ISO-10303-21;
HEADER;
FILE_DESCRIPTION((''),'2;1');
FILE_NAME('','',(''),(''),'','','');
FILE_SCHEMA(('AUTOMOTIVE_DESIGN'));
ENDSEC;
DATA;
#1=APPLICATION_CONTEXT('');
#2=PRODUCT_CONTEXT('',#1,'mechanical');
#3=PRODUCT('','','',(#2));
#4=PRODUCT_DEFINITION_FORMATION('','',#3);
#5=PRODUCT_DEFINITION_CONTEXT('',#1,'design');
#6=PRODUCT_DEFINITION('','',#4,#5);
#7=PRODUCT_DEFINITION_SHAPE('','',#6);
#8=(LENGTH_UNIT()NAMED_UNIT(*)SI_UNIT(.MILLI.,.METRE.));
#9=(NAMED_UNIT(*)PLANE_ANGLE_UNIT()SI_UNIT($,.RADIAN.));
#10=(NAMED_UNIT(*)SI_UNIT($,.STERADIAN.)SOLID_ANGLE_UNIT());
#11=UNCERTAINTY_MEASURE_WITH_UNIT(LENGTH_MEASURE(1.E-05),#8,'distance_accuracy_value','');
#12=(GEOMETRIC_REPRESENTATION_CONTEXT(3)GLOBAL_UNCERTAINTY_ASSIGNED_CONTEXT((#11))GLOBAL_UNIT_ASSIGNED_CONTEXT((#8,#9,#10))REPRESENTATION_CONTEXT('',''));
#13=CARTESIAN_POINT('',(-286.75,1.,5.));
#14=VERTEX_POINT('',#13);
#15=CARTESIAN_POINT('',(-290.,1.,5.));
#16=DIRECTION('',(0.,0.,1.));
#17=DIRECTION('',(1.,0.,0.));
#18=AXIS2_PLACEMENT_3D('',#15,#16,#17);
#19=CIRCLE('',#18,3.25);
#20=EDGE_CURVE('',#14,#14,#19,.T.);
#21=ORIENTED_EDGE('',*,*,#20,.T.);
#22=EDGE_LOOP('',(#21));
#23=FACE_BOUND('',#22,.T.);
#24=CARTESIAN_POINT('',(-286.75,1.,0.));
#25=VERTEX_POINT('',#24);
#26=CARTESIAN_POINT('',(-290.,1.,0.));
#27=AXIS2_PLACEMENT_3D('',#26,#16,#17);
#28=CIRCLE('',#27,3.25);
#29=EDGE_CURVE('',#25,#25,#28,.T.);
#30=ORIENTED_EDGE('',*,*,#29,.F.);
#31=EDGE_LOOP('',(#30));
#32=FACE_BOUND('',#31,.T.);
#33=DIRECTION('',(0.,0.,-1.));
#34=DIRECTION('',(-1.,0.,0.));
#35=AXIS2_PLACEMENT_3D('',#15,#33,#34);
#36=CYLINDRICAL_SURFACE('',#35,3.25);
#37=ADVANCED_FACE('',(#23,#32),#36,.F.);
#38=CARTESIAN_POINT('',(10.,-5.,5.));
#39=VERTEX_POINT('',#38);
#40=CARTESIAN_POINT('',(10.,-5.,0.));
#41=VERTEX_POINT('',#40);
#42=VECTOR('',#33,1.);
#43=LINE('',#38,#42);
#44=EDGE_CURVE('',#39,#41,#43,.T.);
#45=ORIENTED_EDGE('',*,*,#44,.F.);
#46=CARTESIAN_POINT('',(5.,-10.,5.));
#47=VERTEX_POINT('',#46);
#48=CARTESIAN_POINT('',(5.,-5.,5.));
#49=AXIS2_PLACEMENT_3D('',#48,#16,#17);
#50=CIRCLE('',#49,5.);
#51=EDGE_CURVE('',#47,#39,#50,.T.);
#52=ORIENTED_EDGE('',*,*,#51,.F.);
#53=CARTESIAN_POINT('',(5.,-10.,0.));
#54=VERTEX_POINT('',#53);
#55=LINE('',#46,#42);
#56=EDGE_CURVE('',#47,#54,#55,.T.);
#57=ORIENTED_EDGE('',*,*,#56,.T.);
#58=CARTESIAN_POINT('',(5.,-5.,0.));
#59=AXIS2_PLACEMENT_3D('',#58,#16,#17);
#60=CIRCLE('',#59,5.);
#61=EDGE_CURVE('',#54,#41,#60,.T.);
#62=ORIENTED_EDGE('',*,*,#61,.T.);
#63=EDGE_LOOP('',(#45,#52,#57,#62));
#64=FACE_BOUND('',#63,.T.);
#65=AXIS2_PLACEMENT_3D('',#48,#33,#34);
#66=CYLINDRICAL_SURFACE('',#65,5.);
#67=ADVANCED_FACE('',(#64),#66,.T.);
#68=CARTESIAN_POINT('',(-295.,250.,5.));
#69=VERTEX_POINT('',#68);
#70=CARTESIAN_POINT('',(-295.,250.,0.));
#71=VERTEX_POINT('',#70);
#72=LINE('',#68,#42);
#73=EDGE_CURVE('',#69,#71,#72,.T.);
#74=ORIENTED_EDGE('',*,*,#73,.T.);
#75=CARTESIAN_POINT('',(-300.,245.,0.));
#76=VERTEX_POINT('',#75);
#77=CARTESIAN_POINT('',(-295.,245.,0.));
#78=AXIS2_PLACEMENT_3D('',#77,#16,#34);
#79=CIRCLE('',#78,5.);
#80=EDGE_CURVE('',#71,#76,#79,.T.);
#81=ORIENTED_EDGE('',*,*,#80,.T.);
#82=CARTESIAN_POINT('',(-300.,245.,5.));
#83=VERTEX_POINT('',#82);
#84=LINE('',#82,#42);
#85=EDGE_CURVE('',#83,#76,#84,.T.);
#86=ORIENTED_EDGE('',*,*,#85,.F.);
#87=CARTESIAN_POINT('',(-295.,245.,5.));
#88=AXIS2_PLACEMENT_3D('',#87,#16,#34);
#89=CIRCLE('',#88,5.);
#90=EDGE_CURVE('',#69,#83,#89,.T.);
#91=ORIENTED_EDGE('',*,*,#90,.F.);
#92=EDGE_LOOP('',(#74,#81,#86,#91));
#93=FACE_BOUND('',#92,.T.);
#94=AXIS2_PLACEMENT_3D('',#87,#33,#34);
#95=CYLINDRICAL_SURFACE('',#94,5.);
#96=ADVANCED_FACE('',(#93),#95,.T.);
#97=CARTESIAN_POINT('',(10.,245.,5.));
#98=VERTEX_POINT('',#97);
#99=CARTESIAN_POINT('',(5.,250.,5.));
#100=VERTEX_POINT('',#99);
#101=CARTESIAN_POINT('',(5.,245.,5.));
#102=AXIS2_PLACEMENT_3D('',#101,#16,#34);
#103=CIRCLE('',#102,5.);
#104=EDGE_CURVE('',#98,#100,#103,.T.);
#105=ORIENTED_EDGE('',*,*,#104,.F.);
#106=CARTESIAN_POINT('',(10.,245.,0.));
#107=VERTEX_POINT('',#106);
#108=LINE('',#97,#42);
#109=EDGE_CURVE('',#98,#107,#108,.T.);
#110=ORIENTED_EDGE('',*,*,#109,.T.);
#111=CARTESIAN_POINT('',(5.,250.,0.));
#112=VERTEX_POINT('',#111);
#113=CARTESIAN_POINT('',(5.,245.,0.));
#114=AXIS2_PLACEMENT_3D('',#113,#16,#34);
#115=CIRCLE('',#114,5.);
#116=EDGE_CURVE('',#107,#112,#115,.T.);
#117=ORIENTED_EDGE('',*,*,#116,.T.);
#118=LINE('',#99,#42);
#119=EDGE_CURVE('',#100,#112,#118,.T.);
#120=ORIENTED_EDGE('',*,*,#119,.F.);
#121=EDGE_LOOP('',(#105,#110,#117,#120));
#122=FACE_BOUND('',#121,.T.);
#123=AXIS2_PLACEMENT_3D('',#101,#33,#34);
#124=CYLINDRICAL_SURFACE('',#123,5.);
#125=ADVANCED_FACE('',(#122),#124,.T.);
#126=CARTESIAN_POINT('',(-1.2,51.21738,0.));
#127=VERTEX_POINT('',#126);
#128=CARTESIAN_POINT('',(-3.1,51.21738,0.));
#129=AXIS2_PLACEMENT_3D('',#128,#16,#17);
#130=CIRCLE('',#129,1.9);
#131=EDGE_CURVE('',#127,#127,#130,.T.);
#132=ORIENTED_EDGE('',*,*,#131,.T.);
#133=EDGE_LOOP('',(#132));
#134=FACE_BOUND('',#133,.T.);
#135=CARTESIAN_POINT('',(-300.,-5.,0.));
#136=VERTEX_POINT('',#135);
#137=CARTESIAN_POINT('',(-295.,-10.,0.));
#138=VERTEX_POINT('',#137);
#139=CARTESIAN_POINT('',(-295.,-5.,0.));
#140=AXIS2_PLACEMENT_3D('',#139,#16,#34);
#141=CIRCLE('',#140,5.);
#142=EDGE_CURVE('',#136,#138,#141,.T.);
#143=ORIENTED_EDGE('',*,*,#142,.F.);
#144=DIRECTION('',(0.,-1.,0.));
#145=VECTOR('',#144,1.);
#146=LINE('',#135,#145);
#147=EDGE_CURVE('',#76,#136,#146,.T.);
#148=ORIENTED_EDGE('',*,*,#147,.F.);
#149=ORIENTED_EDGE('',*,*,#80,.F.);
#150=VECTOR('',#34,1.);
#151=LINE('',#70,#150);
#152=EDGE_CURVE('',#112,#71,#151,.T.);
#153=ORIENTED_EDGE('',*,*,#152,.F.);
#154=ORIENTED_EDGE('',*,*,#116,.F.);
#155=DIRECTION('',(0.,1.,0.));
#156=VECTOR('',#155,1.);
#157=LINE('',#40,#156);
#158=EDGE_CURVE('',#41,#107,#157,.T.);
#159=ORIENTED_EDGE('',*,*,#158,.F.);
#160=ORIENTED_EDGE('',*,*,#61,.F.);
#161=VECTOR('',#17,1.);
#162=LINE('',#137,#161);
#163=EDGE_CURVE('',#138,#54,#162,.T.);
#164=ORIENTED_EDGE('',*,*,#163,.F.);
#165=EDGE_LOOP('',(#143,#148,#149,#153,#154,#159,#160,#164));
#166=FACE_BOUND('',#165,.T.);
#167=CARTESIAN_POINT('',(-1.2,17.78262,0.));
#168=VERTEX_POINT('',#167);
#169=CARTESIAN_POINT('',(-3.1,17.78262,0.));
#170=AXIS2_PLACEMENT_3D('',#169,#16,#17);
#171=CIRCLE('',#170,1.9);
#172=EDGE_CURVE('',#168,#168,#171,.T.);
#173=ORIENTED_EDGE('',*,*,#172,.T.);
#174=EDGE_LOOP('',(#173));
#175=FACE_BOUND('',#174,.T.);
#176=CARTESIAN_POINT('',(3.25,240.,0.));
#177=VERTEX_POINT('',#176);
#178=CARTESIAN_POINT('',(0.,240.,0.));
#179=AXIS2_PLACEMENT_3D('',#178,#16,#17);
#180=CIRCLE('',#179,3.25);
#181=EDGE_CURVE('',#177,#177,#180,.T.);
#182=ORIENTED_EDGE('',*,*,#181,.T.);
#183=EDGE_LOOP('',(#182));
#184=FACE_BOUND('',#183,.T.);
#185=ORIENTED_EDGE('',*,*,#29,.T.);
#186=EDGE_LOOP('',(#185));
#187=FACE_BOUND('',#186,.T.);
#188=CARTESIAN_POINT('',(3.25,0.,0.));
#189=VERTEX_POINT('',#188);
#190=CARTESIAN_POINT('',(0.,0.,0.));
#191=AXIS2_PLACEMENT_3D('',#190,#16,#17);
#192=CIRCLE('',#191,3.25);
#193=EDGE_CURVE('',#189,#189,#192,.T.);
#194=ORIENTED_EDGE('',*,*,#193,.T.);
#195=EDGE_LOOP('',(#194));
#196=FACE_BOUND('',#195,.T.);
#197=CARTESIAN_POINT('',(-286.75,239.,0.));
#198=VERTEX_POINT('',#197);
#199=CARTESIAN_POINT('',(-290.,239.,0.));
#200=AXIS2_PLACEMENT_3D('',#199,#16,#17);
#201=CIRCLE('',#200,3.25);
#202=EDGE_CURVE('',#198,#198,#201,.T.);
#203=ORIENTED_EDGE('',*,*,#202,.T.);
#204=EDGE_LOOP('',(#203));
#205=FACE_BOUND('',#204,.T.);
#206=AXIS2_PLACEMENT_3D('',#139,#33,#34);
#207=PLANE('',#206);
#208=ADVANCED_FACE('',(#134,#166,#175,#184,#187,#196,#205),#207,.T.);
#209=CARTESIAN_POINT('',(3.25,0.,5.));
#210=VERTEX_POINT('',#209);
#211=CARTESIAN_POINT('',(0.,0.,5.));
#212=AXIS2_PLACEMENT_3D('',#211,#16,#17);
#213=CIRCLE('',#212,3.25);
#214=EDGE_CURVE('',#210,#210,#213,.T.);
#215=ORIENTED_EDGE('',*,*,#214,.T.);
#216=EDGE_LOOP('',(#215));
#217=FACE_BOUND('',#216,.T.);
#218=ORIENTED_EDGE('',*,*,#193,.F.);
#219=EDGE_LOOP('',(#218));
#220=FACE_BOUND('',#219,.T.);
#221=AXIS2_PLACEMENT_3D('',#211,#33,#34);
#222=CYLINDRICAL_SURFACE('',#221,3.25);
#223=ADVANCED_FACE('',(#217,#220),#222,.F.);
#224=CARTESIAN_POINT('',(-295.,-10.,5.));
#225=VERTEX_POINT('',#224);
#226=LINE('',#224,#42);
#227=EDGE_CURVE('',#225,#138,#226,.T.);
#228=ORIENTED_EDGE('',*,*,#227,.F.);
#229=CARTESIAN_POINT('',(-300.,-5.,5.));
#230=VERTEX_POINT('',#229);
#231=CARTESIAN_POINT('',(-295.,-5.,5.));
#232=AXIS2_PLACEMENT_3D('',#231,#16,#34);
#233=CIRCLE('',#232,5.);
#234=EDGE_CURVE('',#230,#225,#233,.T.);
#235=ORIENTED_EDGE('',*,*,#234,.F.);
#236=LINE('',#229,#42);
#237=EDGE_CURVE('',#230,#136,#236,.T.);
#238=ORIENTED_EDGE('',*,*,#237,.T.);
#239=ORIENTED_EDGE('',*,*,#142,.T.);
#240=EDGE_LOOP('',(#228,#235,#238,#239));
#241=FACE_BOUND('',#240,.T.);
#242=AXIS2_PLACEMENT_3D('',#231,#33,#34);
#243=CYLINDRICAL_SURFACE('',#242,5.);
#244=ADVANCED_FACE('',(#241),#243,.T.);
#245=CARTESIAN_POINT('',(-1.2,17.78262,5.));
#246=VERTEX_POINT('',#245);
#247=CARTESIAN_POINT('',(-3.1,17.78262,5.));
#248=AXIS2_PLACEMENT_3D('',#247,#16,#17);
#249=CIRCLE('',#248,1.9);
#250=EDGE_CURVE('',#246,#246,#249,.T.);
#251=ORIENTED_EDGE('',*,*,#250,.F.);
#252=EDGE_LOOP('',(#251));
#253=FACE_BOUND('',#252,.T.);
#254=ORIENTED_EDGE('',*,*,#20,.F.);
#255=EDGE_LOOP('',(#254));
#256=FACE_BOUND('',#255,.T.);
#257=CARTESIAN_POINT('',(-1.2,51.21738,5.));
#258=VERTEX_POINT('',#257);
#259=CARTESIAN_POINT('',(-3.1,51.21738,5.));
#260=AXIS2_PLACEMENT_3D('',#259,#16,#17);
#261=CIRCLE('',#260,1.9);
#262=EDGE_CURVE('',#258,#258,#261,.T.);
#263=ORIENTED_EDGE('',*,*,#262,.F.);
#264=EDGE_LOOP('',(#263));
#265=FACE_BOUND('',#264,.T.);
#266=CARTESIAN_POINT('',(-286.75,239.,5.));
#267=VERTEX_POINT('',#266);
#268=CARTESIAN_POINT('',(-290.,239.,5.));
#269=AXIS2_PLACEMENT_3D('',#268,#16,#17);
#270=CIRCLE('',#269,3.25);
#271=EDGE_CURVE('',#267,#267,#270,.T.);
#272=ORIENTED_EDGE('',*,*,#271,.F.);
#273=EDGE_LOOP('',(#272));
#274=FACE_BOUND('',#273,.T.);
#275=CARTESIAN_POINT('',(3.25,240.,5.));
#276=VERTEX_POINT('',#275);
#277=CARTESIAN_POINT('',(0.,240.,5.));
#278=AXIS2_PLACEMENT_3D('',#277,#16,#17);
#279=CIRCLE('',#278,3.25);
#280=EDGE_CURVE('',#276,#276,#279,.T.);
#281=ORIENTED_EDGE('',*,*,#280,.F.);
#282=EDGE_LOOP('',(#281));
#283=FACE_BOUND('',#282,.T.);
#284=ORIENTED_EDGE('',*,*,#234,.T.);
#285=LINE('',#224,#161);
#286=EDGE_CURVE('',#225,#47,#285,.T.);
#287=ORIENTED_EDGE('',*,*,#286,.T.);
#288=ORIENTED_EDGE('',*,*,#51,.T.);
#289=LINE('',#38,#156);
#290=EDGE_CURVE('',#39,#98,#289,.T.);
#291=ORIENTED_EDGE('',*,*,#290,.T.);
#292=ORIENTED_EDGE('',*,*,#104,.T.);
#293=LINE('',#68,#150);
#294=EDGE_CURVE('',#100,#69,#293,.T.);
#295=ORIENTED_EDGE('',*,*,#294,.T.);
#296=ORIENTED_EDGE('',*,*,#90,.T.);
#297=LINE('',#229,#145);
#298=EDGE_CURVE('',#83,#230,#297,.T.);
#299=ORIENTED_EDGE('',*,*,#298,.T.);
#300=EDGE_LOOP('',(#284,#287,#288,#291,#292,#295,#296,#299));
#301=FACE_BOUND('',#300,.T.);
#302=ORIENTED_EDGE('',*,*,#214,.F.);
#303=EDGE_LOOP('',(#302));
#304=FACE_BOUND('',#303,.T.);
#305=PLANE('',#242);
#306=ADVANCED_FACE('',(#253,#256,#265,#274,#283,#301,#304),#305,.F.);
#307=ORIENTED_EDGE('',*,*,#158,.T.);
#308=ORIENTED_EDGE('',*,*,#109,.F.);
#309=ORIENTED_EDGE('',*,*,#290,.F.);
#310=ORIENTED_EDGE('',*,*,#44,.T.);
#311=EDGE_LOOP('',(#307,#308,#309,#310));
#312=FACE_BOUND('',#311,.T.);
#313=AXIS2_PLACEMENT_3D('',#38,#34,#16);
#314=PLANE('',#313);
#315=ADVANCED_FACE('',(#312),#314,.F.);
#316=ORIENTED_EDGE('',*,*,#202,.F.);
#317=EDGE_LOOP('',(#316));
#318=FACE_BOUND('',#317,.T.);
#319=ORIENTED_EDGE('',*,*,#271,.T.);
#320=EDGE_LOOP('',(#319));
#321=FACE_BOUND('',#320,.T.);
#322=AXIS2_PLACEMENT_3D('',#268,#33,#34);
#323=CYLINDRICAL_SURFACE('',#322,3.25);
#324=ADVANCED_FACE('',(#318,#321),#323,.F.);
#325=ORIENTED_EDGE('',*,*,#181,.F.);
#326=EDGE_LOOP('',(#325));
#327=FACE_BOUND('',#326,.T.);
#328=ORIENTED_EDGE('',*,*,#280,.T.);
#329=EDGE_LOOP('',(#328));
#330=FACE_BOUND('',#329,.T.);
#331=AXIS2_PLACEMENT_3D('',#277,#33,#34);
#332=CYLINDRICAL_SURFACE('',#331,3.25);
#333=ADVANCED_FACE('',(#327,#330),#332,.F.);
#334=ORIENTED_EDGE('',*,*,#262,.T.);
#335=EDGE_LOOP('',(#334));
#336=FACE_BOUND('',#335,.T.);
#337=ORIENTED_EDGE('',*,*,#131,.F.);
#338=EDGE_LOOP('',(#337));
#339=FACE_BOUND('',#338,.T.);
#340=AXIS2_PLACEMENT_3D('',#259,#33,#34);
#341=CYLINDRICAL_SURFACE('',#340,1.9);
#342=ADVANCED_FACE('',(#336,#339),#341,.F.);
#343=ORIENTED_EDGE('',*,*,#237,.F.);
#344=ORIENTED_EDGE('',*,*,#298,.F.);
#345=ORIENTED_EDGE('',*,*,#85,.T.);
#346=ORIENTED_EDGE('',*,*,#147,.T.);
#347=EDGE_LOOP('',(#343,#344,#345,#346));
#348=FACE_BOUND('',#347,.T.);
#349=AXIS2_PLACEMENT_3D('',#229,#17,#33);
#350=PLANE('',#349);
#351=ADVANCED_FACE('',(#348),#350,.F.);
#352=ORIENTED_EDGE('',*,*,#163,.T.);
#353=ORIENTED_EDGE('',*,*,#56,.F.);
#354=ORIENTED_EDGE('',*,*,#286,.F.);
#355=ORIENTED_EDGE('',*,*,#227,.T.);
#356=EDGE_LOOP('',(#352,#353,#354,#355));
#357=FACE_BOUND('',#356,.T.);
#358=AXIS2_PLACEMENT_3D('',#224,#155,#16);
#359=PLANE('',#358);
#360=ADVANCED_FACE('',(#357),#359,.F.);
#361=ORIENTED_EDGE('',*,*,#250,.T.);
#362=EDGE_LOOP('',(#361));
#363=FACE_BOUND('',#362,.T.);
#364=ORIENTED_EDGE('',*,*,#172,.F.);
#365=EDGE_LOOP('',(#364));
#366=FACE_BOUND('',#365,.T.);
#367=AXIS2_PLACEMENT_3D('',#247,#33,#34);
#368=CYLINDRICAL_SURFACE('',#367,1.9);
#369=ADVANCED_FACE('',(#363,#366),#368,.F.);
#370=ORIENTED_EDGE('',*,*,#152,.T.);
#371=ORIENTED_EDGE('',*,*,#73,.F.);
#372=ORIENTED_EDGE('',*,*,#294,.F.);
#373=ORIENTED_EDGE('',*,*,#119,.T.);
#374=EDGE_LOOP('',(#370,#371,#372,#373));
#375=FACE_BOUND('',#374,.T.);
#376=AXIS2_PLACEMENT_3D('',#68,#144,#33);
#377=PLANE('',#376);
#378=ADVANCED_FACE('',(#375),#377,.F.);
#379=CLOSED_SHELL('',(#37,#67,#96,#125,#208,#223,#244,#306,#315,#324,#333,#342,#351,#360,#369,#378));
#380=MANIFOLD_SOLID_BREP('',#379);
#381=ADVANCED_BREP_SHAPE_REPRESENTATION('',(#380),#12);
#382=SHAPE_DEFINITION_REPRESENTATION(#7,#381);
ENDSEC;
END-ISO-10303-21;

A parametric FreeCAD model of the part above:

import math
import FreeCAD as App
import Part
import Sketcher

doc = App.newDocument("Part")
body = doc.addObject("PartDesign::Body", "Body")

# Sketch on XY plane
sketch1 = body.newObject("Sketcher::SketchObject", "Sketch")
sketch1.AttachmentSupport = (doc.getObject("XY_Plane"), [""])
sketch1.MapMode = "FlatFace"
sketch1.addGeometry([
    Part.LineSegment(App.Vector(-295, -10, 0), App.Vector(5, -10, 0)),  # 0
    Part.ArcOfCircle(Part.Circle(App.Vector(5, -5, 0), App.Vector(0, 0, 1), 5), math.radians(-90), math.radians(0)),  # 1
    Part.LineSegment(App.Vector(10, -5, 0), App.Vector(10, 245, 0)),  # 2
    Part.ArcOfCircle(Part.Circle(App.Vector(5, 245, 0), App.Vector(0, 0, 1), 5), math.radians(0), math.radians(90)),  # 3
    Part.LineSegment(App.Vector(5, 250, 0), App.Vector(-295, 250, 0)),  # 4
    Part.ArcOfCircle(Part.Circle(App.Vector(-295, 245, 0), App.Vector(0, 0, 1), 5), math.radians(90), math.radians(180)),  # 5
    Part.LineSegment(App.Vector(-300, 245, 0), App.Vector(-300, -5, 0)),  # 6
    Part.ArcOfCircle(Part.Circle(App.Vector(-295, -5, 0), App.Vector(0, 0, 1), 5), math.radians(180), math.radians(270)),  # 7
    Part.Circle(App.Vector(-290, 1, 0), App.Vector(0, 0, 1), 3.2),  # 8
    Part.Circle(App.Vector(0, 0, 0), App.Vector(0, 0, 1), 3.2),  # 9
    Part.Circle(App.Vector(-3.1, 17.8, 0), App.Vector(0, 0, 1), 1.9),  # 10
    Part.Circle(App.Vector(-3.1, 51.2, 0), App.Vector(0, 0, 1), 1.9),  # 11
    Part.Circle(App.Vector(-290, 239, 0), App.Vector(0, 0, 1), 3.2),  # 12
    Part.Circle(App.Vector(0, 240, 0), App.Vector(0, 0, 1), 3.2),  # 13
], False)
sketch1.addConstraint([
    Sketcher.Constraint("Tangent", 0, 2, 1, 1),
    Sketcher.Constraint("Tangent", 1, 2, 2, 1),
    Sketcher.Constraint("Tangent", 2, 2, 3, 1),
    Sketcher.Constraint("Tangent", 3, 2, 4, 1),
    Sketcher.Constraint("Tangent", 4, 2, 5, 1),
    Sketcher.Constraint("Tangent", 5, 2, 6, 1),
    Sketcher.Constraint("Tangent", 6, 2, 7, 1),
    Sketcher.Constraint("Tangent", 7, 2, 0, 1),
    Sketcher.Constraint("Horizontal", 0),
    Sketcher.Constraint("Vertical", 2),
    Sketcher.Constraint("Horizontal", 4),
    Sketcher.Constraint("Vertical", 6),
    Sketcher.Constraint("Coincident", 9, 3, -1, 1),
    Sketcher.Constraint("Equal", 1, 3),
    Sketcher.Constraint("Equal", 3, 5),
    Sketcher.Constraint("Equal", 5, 7),
    Sketcher.Constraint("Equal", 8, 9),
    Sketcher.Constraint("Equal", 10, 11),
    Sketcher.Constraint("Equal", 9, 12),
    Sketcher.Constraint("Equal", 12, 13),
    Sketcher.Constraint("PointOnObject", 13, 3, -2),
    Sketcher.Constraint("Vertical", 10, 3, 11, 3),
    Sketcher.Constraint("Vertical", 8, 3, 12, 3),
    Sketcher.Constraint("Radius", 1, 5.0),
    Sketcher.Constraint("Diameter", 8, 6.5),
    Sketcher.Constraint("Diameter", 10, 3.8),
    Sketcher.Constraint("DistanceX", 0, 1, 0, 2, 300.0),
    Sketcher.Constraint("DistanceY", 2, 1, 2, 2, 250.0),
    Sketcher.Constraint("DistanceX", -1, 1, 1, 3, 5.0),
    Sketcher.Constraint("DistanceY", 1, 3, -1, 1, 5.0),
    Sketcher.Constraint("DistanceX", 8, 3, -1, 1, 290.0),
    Sketcher.Constraint("DistanceY", -1, 1, 8, 3, 1.0),
    Sketcher.Constraint("DistanceY", -1, 1, 12, 3, 239.0),
    Sketcher.Constraint("DistanceY", -1, 1, 13, 3, 240.0),
    Sketcher.Constraint("DistanceX", 10, 3, -1, 1, 3.1),
    Sketcher.Constraint("DistanceY", -1, 1, 10, 3, 17.78262),
    Sketcher.Constraint("DistanceY", -1, 1, 11, 3, 51.21738),
])
pad1 = body.newObject("PartDesign::Pad", "Pad")
pad1.Profile = sketch1
pad1.Length = 5

doc.recompute()
